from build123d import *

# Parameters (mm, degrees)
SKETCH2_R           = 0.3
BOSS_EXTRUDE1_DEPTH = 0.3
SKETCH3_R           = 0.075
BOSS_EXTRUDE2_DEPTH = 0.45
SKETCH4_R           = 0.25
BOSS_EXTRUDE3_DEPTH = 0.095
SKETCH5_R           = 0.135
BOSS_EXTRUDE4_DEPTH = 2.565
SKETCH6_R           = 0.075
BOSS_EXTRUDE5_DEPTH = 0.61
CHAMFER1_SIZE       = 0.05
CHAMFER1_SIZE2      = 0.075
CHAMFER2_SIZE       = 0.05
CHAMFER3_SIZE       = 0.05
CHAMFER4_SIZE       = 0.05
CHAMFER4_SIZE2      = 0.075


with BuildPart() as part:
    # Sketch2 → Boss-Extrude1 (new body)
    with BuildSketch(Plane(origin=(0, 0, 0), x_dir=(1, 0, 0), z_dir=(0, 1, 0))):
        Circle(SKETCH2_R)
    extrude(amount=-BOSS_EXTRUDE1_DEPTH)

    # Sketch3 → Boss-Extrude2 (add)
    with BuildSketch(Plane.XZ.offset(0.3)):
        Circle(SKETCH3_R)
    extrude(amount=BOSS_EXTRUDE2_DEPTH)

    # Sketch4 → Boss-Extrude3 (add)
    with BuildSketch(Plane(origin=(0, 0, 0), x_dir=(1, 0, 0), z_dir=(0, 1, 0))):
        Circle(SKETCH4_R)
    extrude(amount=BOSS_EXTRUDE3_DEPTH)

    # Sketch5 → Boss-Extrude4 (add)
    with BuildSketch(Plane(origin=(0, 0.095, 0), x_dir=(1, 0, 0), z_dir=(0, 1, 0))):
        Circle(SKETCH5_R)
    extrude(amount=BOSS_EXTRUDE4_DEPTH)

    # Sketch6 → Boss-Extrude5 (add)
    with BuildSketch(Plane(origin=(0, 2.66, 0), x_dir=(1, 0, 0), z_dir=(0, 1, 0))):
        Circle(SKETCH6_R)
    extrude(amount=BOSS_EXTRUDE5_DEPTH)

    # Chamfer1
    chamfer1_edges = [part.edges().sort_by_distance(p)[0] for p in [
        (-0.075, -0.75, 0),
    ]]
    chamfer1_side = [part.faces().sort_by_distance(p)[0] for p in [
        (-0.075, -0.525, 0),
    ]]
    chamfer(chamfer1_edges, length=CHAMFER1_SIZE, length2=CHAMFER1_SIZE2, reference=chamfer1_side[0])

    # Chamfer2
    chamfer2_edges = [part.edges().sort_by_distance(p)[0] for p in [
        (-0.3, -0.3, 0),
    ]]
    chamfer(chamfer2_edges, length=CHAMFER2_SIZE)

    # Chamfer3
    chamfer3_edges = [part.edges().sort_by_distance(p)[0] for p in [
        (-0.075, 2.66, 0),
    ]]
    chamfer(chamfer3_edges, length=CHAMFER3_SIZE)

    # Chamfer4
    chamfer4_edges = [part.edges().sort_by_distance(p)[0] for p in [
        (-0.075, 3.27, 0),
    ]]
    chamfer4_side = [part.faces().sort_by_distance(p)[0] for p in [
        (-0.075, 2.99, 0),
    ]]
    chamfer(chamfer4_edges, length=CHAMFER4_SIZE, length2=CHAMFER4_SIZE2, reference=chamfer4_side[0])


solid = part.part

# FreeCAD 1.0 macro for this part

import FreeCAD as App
import Part
import Sketcher

V = App.Vector
Q = App.Units.Quantity


def edges_at(feature, points):
    """Names of the edges that pass closest to the given points."""
    edges = feature.Shape.Edges
    near = lambda p: min(range(len(edges)), key=lambda i: edges[i].distToShape(Part.Vertex(*p))[0])
    return sorted({f"Edge{near(p) + 1}" for p in points})

doc = App.newDocument("Part")
body = doc.addObject("PartDesign::Body", "Body")

# Sketch on XZ plane
sketch1 = body.newObject("Sketcher::SketchObject", "Sketch")
sketch1.AttachmentSupport = (doc.getObject("XZ_Plane"), [""])
sketch1.MapMode = "FlatFace"
sketch1.addGeometry(Part.Circle(V(0, 0, 0), V(0, 0, 1), 0.3), False)
sketch1.addConstraint([
    Sketcher.Constraint("Coincident", 0, 3, -1, 1),
    Sketcher.Constraint("Diameter", 0, Q("0.6 mm")),
])
pad1 = body.newObject("PartDesign::Pad", "Pad")
pad1.Profile = sketch1
pad1.Length = 0.3

# Sketch on XZ plane
sketch2 = body.newObject("Sketcher::SketchObject", "Sketch001")
sketch2.AttachmentSupport = (doc.getObject("XZ_Plane"), [""])
sketch2.MapMode = "FlatFace"
sketch2.AttachmentOffset = App.Placement(V(0, 0, 0.3), App.Rotation())
sketch2.addGeometry(Part.Circle(V(0, 0, 0), V(0, 0, 1), 0.075), False)
sketch2.addConstraint([
    Sketcher.Constraint("Coincident", 0, 3, -1, 1),
    Sketcher.Constraint("Diameter", 0, Q("0.15 mm")),
])
pad2 = body.newObject("PartDesign::Pad", "Pad001")
pad2.Profile = sketch2
pad2.Length = 0.45

# Sketch on XZ plane
sketch3 = body.newObject("Sketcher::SketchObject", "Sketch002")
sketch3.AttachmentSupport = (doc.getObject("XZ_Plane"), [""])
sketch3.MapMode = "FlatFace"
sketch3.addGeometry(Part.Circle(V(0, 0, 0), V(0, 0, 1), 0.25), False)
sketch3.addConstraint([
    Sketcher.Constraint("Coincident", 0, 3, -1, 1),
    Sketcher.Constraint("Diameter", 0, Q("0.5 mm")),
])
pad3 = body.newObject("PartDesign::Pad", "Pad002")
pad3.Profile = sketch3
pad3.Length = 0.095
pad3.Reversed = True

# Sketch on XZ plane
sketch4 = body.newObject("Sketcher::SketchObject", "Sketch003")
sketch4.AttachmentSupport = (doc.getObject("XZ_Plane"), [""])
sketch4.MapMode = "FlatFace"
sketch4.AttachmentOffset = App.Placement(V(0, 0, -0.095), App.Rotation())
sketch4.addGeometry(Part.Circle(V(0, 0, 0), V(0, 0, 1), 0.135), False)
sketch4.addConstraint([
    Sketcher.Constraint("Coincident", 0, 3, -1, 1),
    Sketcher.Constraint("Diameter", 0, Q("0.27 mm")),
])
pad4 = body.newObject("PartDesign::Pad", "Pad003")
pad4.Profile = sketch4
pad4.Length = 2.565
pad4.Reversed = True

# Sketch on XZ plane
sketch5 = body.newObject("Sketcher::SketchObject", "Sketch004")
sketch5.AttachmentSupport = (doc.getObject("XZ_Plane"), [""])
sketch5.MapMode = "FlatFace"
sketch5.AttachmentOffset = App.Placement(V(0, 0, -2.66), App.Rotation())
sketch5.addGeometry(Part.Circle(V(0, 0, 0), V(0, 0, 1), 0.075), False)
sketch5.addConstraint([
    Sketcher.Constraint("Coincident", 0, 3, -1, 1),
    Sketcher.Constraint("Diameter", 0, Q("0.15 mm")),
])
pad5 = body.newObject("PartDesign::Pad", "Pad004")
pad5.Profile = sketch5
pad5.Length = 0.61
pad5.Reversed = True
doc.recompute()

chamfer = body.newObject("PartDesign::Chamfer", "Chamfer")
chamfer.Base = (pad5, edges_at(pad5, [(-0.075, -0.75, 0)]))
chamfer.ChamferType = "Two distances"
chamfer.Size = 0.05
chamfer.Size2 = 0.075
doc.recompute()

chamfer2 = body.newObject("PartDesign::Chamfer", "Chamfer001")
chamfer2.Base = (chamfer, edges_at(chamfer, [(-0.3, -0.3, 0)]))
chamfer2.Size = 0.05
doc.recompute()

chamfer3 = body.newObject("PartDesign::Chamfer", "Chamfer002")
chamfer3.Base = (chamfer2, edges_at(chamfer2, [(-0.075, 2.66, 0)]))
chamfer3.Size = 0.05
doc.recompute()

chamfer4 = body.newObject("PartDesign::Chamfer", "Chamfer003")
chamfer4.Base = (chamfer3, edges_at(chamfer3, [(-0.075, 3.27, 0)]))
chamfer4.ChamferType = "Two distances"
chamfer4.Size = 0.05
chamfer4.Size2 = 0.075

doc.recompute()
